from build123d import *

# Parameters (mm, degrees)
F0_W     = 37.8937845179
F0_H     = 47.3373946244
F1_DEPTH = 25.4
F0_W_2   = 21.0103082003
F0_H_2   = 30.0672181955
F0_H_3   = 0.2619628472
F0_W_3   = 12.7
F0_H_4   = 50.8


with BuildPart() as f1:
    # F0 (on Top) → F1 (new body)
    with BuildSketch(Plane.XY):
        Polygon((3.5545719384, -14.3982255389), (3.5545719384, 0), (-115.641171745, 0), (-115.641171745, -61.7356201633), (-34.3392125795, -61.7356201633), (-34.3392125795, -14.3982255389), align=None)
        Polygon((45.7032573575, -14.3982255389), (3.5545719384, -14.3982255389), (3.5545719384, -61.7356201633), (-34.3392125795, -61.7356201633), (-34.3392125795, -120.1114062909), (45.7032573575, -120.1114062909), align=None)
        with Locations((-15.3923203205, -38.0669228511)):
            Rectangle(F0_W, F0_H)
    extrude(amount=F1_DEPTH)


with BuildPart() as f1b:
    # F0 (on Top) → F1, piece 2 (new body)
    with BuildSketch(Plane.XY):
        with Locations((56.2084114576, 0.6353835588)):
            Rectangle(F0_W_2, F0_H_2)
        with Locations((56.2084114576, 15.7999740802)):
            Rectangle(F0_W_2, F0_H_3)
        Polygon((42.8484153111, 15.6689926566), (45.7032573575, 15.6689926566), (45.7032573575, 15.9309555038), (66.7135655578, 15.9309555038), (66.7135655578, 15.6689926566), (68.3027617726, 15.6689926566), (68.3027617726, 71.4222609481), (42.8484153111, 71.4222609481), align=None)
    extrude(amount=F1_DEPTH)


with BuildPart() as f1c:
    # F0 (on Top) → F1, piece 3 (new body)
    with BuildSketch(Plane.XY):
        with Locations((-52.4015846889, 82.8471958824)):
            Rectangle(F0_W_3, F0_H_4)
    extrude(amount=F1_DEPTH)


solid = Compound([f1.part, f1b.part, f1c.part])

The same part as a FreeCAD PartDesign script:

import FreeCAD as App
import Part
import Sketcher
from FreeCAD import Vector
Q = App.Units.Quantity

doc = App.newDocument("Part")
body = doc.addObject("PartDesign::Body", "Body")

sketch1 = body.newObject("Sketcher::SketchObject", "Sketch")
sketch1.AttachmentSupport = (doc.getObject("XY_Plane"), [""])
sketch1.MapMode = "FlatFace"
sketch1.addGeometry(Part.LineSegment(Vector(4, -14, 0), Vector(4, 0, 0)), False)
sketch1.addGeometry(Part.LineSegment(Vector(4, 0, 0), Vector(-116, 0, 0)), False)
sketch1.addGeometry(Part.LineSegment(Vector(-116, 0, 0), Vector(-116, -62, 0)), False)
sketch1.addGeometry(Part.LineSegment(Vector(-116, -62, 0), Vector(-34, -62, 0)), False)
sketch1.addGeometry(Part.LineSegment(Vector(-34, -62, 0), Vector(-34, -120, 0)), False)
sketch1.addGeometry(Part.LineSegment(Vector(-34, -120, 0), Vector(46, -120, 0)), False)
sketch1.addGeometry(Part.LineSegment(Vector(46, -120, 0), Vector(46, -14, 0)), False)
sketch1.addGeometry(Part.LineSegment(Vector(46, -14, 0), Vector(4, -14, 0)), False)
sketch1.addConstraint(Sketcher.Constraint("Coincident", 0, 2, 1, 1))
sketch1.addConstraint(Sketcher.Constraint("Coincident", 1, 2, 2, 1))
sketch1.addConstraint(Sketcher.Constraint("Coincident", 2, 2, 3, 1))
sketch1.addConstraint(Sketcher.Constraint("Coincident", 3, 2, 4, 1))
sketch1.addConstraint(Sketcher.Constraint("Coincident", 4, 2, 5, 1))
sketch1.addConstraint(Sketcher.Constraint("Coincident", 5, 2, 6, 1))
sketch1.addConstraint(Sketcher.Constraint("Coincident", 6, 2, 7, 1))
sketch1.addConstraint(Sketcher.Constraint("Coincident", 7, 2, 0, 1))
sketch1.addConstraint(Sketcher.Constraint("Vertical", 0))
sketch1.addConstraint(Sketcher.Constraint("Horizontal", 1))
sketch1.addConstraint(Sketcher.Constraint("Vertical", 2))
sketch1.addConstraint(Sketcher.Constraint("Horizontal", 3))
sketch1.addConstraint(Sketcher.Constraint("Vertical", 4))
sketch1.addConstraint(Sketcher.Constraint("Horizontal", 5))
sketch1.addConstraint(Sketcher.Constraint("Vertical", 6))
sketch1.addConstraint(Sketcher.Constraint("Horizontal", 7))
sketch1.addConstraint(Sketcher.Constraint("PointOnObject", 0, 2, -1))
sketch1.addConstraint(Sketcher.Constraint("DistanceX", 3, 1, 3, 2, 81.301959))
sketch1.addConstraint(Sketcher.Constraint("DistanceX", 5, 1, 5, 2, 80.04247))
sketch1.addConstraint(Sketcher.Constraint("DistanceY", 2, 2, 2, 1, 61.73562))
sketch1.addConstraint(Sketcher.Constraint("DistanceY", 6, 1, 6, 2, 105.713181))
sketch1.addConstraint(Sketcher.Constraint("DistanceX", 1, 2, 1, 1, 119.195744))
sketch1.addConstraint(Sketcher.Constraint("DistanceY", 0, 1, 0, 2, 14.398226))
sketch1.addConstraint(Sketcher.Constraint("DistanceX", -1, 1, 0, 2, 3.554572))
pad1 = body.newObject("PartDesign::Pad", "Pad")
pad1.Profile = sketch1
pad1.Length = Q("1 in")
body2 = doc.addObject("PartDesign::Body", "Body001")

sketch2 = body2.newObject("Sketcher::SketchObject", "Sketch001")
sketch2.AttachmentSupport = (doc.getObject("XY_Plane001"), [""])
sketch2.MapMode = "FlatFace"
sketch2.addGeometry(Part.LineSegment(Vector(45.7, -14.4, 0), Vector(66.7, -14.4, 0)), False)
sketch2.addGeometry(Part.LineSegment(Vector(66.7, -14.4, 0), Vector(66.7, 15.7, 0)), False)
sketch2.addGeometry(Part.LineSegment(Vector(66.7, 15.7, 0), Vector(68.3, 15.7, 0)), False)
sketch2.addGeometry(Part.LineSegment(Vector(68.3, 15.7, 0), Vector(68.3, 71.4, 0)), False)
sketch2.addGeometry(Part.LineSegment(Vector(68.3, 71.4, 0), Vector(42.8, 71.4, 0)), False)
sketch2.addGeometry(Part.LineSegment(Vector(42.8, 71.4, 0), Vector(42.8, 15.7, 0)), False)
sketch2.addGeometry(Part.LineSegment(Vector(42.8, 15.7, 0), Vector(45.7, 15.7, 0)), False)
sketch2.addGeometry(Part.LineSegment(Vector(45.7, 15.7, 0), Vector(45.7, -14.4, 0)), False)
sketch2.addConstraint(Sketcher.Constraint("Coincident", 0, 2, 1, 1))
sketch2.addConstraint(Sketcher.Constraint("Coincident", 1, 2, 2, 1))
sketch2.addConstraint(Sketcher.Constraint("Coincident", 2, 2, 3, 1))
sketch2.addConstraint(Sketcher.Constraint("Coincident", 3, 2, 4, 1))
sketch2.addConstraint(Sketcher.Constraint("Coincident", 4, 2, 5, 1))
sketch2.addConstraint(Sketcher.Constraint("Coincident", 5, 2, 6, 1))
sketch2.addConstraint(Sketcher.Constraint("Coincident", 6, 2, 7, 1))
sketch2.addConstraint(Sketcher.Constraint("Coincident", 7, 2, 0, 1))
sketch2.addConstraint(Sketcher.Constraint("Horizontal", 0))
sketch2.addConstraint(Sketcher.Constraint("Vertical", 1))
sketch2.addConstraint(Sketcher.Constraint("Horizontal", 2))
sketch2.addConstraint(Sketcher.Constraint("Vertical", 3))
sketch2.addConstraint(Sketcher.Constraint("Horizontal", 4))
sketch2.addConstraint(Sketcher.Constraint("Vertical", 5))
sketch2.addConstraint(Sketcher.Constraint("Horizontal", 6))
sketch2.addConstraint(Sketcher.Constraint("Vertical", 7))
sketch2.addConstraint(Sketcher.Constraint("Horizontal", 2, 2, 5, 2))
sketch2.addConstraint(Sketcher.Constraint("DistanceY", -1, 1, 3, 2, Q("2.8119 in")))
sketch2.addConstraint(Sketcher.Constraint("DistanceX", 0, 1, 0, 2, 21.010308))
sketch2.addConstraint(Sketcher.Constraint("DistanceY", 1, 1, 1, 2, 30.067218))
sketch2.addConstraint(Sketcher.Constraint("DistanceY", 3, 1, 3, 2, 55.753268))
sketch2.addConstraint(Sketcher.Constraint("DistanceX", 2, 1, 2, 2, 1.589196))
sketch2.addConstraint(Sketcher.Constraint("DistanceX", 4, 2, 4, 1, 25.454346))
sketch2.addConstraint(Sketcher.Constraint("DistanceX", -1, 1, 2, 2, 68.302762))
pad2 = body2.newObject("PartDesign::Pad", "Pad001")
pad2.Profile = sketch2
pad2.Length = Q("1 in")
body3 = doc.addObject("PartDesign::Body", "Body002")

sketch3 = body3.newObject("Sketcher::SketchObject", "Sketch002")
sketch3.AttachmentSupport = (doc.getObject("XY_Plane002"), [""])
sketch3.MapMode = "FlatFace"
sketch3.addGeometry(Part.LineSegment(Vector(-59, 108, 0), Vector(-59, 57, 0)), False)
sketch3.addGeometry(Part.LineSegment(Vector(-59, 57, 0), Vector(-46, 57, 0)), False)
sketch3.addGeometry(Part.LineSegment(Vector(-46, 57, 0), Vector(-46, 108, 0)), False)
sketch3.addGeometry(Part.LineSegment(Vector(-46, 108, 0), Vector(-59, 108, 0)), False)
sketch3.addConstraint(Sketcher.Constraint("Coincident", 0, 2, 1, 1))
sketch3.addConstraint(Sketcher.Constraint("Coincident", 1, 2, 2, 1))
sketch3.addConstraint(Sketcher.Constraint("Coincident", 2, 2, 3, 1))
sketch3.addConstraint(Sketcher.Constraint("Coincident", 3, 2, 0, 1))
sketch3.addConstraint(Sketcher.Constraint("Vertical", 0))
sketch3.addConstraint(Sketcher.Constraint("Horizontal", 1))
sketch3.addConstraint(Sketcher.Constraint("Vertical", 2))
sketch3.addConstraint(Sketcher.Constraint("Horizontal", 3))
sketch3.addConstraint(Sketcher.Constraint("DistanceY", 0, 2, 0, 1, Q("2 in")))
sketch3.addConstraint(Sketcher.Constraint("DistanceX", 1, 1, 1, 2, Q("0.5 in")))
sketch3.addConstraint(Sketcher.Constraint("DistanceX", 0, 2, -1, 1, 58.751585))
sketch3.addConstraint(Sketcher.Constraint("DistanceY", -1, 1, 0, 2, 57.447196))
pad3 = body3.newObject("PartDesign::Pad", "Pad002")
pad3.Profile = sketch3
pad3.Length = Q("1 in")

doc.recompute()
